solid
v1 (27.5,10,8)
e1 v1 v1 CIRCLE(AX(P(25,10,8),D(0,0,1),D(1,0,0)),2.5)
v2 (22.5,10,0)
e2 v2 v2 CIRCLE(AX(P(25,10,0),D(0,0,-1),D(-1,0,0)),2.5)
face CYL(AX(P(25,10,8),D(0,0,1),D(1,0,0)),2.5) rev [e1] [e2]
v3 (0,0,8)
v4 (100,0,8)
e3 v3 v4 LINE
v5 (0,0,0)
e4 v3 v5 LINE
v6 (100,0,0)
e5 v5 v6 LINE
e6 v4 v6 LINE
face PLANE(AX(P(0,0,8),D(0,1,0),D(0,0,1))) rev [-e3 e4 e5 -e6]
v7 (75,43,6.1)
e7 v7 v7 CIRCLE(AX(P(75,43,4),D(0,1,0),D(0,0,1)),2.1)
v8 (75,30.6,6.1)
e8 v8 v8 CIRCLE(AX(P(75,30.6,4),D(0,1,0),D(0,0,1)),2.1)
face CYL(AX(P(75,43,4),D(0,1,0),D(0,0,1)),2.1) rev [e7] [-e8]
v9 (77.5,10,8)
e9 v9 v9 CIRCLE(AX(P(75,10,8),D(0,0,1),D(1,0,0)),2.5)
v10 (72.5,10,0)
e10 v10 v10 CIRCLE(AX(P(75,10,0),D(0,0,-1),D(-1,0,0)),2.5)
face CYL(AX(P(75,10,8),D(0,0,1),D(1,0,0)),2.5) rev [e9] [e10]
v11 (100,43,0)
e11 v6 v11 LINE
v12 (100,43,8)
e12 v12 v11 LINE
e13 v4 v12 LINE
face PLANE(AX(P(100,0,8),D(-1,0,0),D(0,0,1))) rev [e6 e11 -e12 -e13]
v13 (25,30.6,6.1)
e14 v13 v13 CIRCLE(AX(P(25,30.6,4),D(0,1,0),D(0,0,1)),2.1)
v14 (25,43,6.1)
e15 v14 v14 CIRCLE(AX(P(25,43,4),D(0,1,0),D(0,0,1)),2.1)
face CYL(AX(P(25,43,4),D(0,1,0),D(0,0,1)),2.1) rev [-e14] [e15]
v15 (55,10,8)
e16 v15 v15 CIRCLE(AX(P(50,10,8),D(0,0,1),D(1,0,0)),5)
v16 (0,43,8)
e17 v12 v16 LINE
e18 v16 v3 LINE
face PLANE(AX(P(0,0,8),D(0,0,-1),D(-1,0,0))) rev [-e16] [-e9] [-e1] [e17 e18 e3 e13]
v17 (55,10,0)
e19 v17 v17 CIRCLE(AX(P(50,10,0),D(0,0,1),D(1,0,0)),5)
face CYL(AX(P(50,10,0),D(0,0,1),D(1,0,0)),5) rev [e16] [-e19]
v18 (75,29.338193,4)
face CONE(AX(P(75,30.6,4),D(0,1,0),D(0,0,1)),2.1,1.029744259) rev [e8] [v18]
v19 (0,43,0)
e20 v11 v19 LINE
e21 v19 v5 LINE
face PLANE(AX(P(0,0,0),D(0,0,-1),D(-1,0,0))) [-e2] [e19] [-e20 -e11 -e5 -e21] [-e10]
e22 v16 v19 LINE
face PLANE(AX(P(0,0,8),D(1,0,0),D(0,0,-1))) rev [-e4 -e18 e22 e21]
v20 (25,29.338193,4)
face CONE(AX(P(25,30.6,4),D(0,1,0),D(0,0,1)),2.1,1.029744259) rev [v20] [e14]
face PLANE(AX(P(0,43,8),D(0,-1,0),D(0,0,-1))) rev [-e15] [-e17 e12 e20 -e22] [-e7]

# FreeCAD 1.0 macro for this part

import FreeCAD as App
import Part
import Sketcher

V = App.Vector

doc = App.newDocument("Part")
body = doc.addObject("PartDesign::Body", "Body")

# Sketch on XY plane
sketch1 = body.newObject("Sketcher::SketchObject", "Sketch")
sketch1.AttachmentSupport = (doc.getObject("XY_Plane"), [""])
sketch1.MapMode = "FlatFace"
sketch1.addGeometry([
    Part.LineSegment(V(0, 43, 0), V(0, 0, 0)),
    Part.LineSegment(V(0, 0, 0), V(100, 0, 0)),
    Part.LineSegment(V(100, 0, 0), V(100, 43, 0)),
    Part.LineSegment(V(100, 43, 0), V(0, 43, 0)),
], False)
sketch1.addConstraint([
    Sketcher.Constraint("Coincident", 0, 2, 1, 1),
    Sketcher.Constraint("Coincident", 1, 2, 2, 1),
    Sketcher.Constraint("Coincident", 2, 2, 3, 1),
    Sketcher.Constraint("Coincident", 3, 2, 0, 1),
    Sketcher.Constraint("Vertical", 0),
    Sketcher.Constraint("Horizontal", 1),
    Sketcher.Constraint("Vertical", 2),
    Sketcher.Constraint("Horizontal", 3),
    Sketcher.Constraint("Coincident", 0, 2, -1, 1),
    Sketcher.Constraint("DistanceX", 1, 1, 1, 2, 100.0),
    Sketcher.Constraint("DistanceY", 0, 2, 0, 1, 43.0),
])
pad1 = body.newObject("PartDesign::Pad", "Pad")
pad1.Profile = sketch1
pad1.Length = 8

# Sketch on XY plane
sketch2 = body.newObject("Sketcher::SketchObject", "Sketch001")
sketch2.AttachmentSupport = (doc.getObject("XY_Plane"), [""])
sketch2.MapMode = "FlatFace"
sketch2.AttachmentOffset = App.Placement(V(0, 0, 8), App.Rotation())
sketch2.addGeometry(Part.Circle(V(50, 10, 0), V(0, 0, 1), 5), False)
sketch2.addConstraint([
    Sketcher.Constraint("Diameter", 0, 10.0),
    Sketcher.Constraint("DistanceX", -1, 1, 0, 3, 50.0),
    Sketcher.Constraint("DistanceY", -1, 1, 0, 3, 10.0),
])
pocket1 = body.newObject("PartDesign::Pocket", "Pocket")
pocket1.Profile = sketch2
pocket1.Length = 8

# Sketch on XY plane
sketch3 = body.newObject("Sketcher::SketchObject", "Sketch002")
sketch3.AttachmentSupport = (doc.getObject("XY_Plane"), [""])
sketch3.MapMode = "FlatFace"
sketch3.AttachmentOffset = App.Placement(V(0, 0, 8), App.Rotation())
sketch3.addGeometry([
    Part.Circle(V(25, 10, 0), V(0, 0, 1), 2.5),
    Part.Circle(V(75, 10, 0), V(0, 0, 1), 2.5),
], False)
sketch3.addConstraint([
    Sketcher.Constraint("Equal", 0, 1),
    Sketcher.Constraint("Horizontal", 0, 3, 1, 3),
    Sketcher.Constraint("Diameter", 0, 5.0),
    Sketcher.Constraint("DistanceX", -1, 1, 0, 3, 25.0),
    Sketcher.Constraint("DistanceY", -1, 1, 0, 3, 10.0),
    Sketcher.Constraint("DistanceX", -1, 1, 1, 3, 75.0),
])
doc.recompute()
hole = body.newObject("PartDesign::Hole", "Hole")
hole.Profile = sketch3
hole.ThreadType = "None"
hole.Diameter = 5
hole.DepthType = "Dimension"
hole.Depth = 15
hole.DrillPoint = "Angled"
hole.DrillPointAngle = 118

# Sketch on XZ plane
sketch4 = body.newObject("Sketcher::SketchObject", "Sketch003")
sketch4.AttachmentSupport = (doc.getObject("XZ_Plane"), [""])
sketch4.MapMode = "FlatFace"
sketch4.AttachmentOffset = App.Placement(V(0, 0, -43), App.Rotation())
sketch4.addGeometry([
    Part.Circle(V(25, 4, 0), V(0, 0, 1), 2.1),
    Part.Circle(V(75, 4, 0), V(0, 0, 1), 2.1),
], False)
sketch4.addConstraint([
    Sketcher.Constraint("Equal", 0, 1),
    Sketcher.Constraint("Horizontal", 0, 3, 1, 3),
    Sketcher.Constraint("Diameter", 0, 4.2),
    Sketcher.Constraint("DistanceX", -1, 1, 0, 3, 25.0),
    Sketcher.Constraint("DistanceY", -1, 1, 0, 3, 4.0),
    Sketcher.Constraint("DistanceX", -1, 1, 1, 3, 75.0),
])
doc.recompute()
hole2 = body.newObject("PartDesign::Hole", "Hole001")
hole2.Profile = sketch4
hole2.ThreadType = "None"
hole2.Diameter = 4.2
hole2.DepthType = "Dimension"
hole2.Depth = 12.4
hole2.DrillPoint = "Angled"
hole2.DrillPointAngle = 118
hole2.Reversed = True

doc.recompute()
